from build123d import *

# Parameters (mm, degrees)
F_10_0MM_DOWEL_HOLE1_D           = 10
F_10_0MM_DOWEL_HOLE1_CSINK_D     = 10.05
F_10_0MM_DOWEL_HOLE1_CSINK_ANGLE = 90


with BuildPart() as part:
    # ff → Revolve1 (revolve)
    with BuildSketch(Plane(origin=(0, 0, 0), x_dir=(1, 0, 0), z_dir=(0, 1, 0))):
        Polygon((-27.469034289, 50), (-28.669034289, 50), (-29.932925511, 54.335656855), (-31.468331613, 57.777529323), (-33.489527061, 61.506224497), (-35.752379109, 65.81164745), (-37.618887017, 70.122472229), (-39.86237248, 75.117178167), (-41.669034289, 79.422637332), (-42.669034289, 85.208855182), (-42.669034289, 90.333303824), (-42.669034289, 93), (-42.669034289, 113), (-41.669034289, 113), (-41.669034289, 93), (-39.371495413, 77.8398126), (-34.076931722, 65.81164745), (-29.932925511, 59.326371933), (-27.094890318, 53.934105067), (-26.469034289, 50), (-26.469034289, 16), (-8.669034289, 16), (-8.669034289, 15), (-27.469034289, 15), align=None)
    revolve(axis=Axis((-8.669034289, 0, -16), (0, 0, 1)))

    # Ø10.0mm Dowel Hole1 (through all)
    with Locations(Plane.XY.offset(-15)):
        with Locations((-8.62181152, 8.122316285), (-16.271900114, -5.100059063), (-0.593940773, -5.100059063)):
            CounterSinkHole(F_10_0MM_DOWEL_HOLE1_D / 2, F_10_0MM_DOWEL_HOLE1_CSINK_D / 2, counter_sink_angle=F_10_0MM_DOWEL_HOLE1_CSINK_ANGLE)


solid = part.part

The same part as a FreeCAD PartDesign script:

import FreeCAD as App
import Part
import Sketcher
from FreeCAD import Vector


def add_polygon(sketch, points):
    """Adds a closed chain of lines whose ends are joined by coincident constraints."""
    first, n = sketch.GeometryCount, len(points)
    for a, b in zip(points, points[1:] + points[:1]):
        sketch.addGeometry(Part.LineSegment(App.Vector(*a, 0), App.Vector(*b, 0)), False)
    for i in range(n):
        sketch.addConstraint(Sketcher.Constraint("Coincident", first + i, 2, first + (i + 1) % n, 1))

doc = App.newDocument("Part")
body = doc.addObject("PartDesign::Body", "Body")

# Sketch on XZ plane
sketch1 = body.newObject("Sketcher::SketchObject", "Sketch")
sketch1.AttachmentSupport = (doc.getObject("XZ_Plane"), [""])
sketch1.MapMode = "FlatFace"
add_polygon(sketch1, [(-28.7, -50), (-27.5, -50), (-27.5, -15), (-8.7, -15), (-8.7, -16), (-26.5, -16), (-26.5, -50), (-27.1, -53.9), (-29.9, -59.3), (-34.1, -65.8), (-39.4, -77.8), (-41.7, -93), (-41.7, -113), (-42.7, -113), (-42.7, -85.2), (-41.7, -79.4), (-39.9, -75.1), (-37.6, -70.1), (-35.8, -65.8), (-33.5, -61.5), (-31.5, -57.8), (-29.9, -54.3)])  # lines 0-21
sketch1.addGeometry(Part.LineSegment(Vector(-8.7, -113, 0), Vector(-8.7, -15, 0)), True)  # axis
sketch1.addConstraint([
    Sketcher.Constraint("Horizontal", 0),
    Sketcher.Constraint("Vertical", 1),
    Sketcher.Constraint("Horizontal", 2),
    Sketcher.Constraint("Vertical", 3),
    Sketcher.Constraint("Horizontal", 4),
    Sketcher.Constraint("Vertical", 5),
    Sketcher.Constraint("Vertical", 11),
    Sketcher.Constraint("Horizontal", 12),
    Sketcher.Constraint("Vertical", 13),
    Sketcher.Constraint("Vertical", 22),
    Sketcher.Constraint("Coincident", 22, 2, 2, 2),
    Sketcher.Constraint("Horizontal", 0, 2, 5, 2),
    Sketcher.Constraint("Horizontal", 8, 2, 17, 2),
    Sketcher.Constraint("Horizontal", 12, 2, 22, 1),
    Sketcher.Constraint("Vertical", 11, 2, 14, 2),
    Sketcher.Constraint("Vertical", 7, 2, 20, 2),
    Sketcher.Constraint("Equal", 12, 3),
    Sketcher.Constraint("DistanceX", 12, 2, 12, 1, 1.0),
    Sketcher.Constraint("DistanceY", 1, 1, 1, 2, 35.0),
    Sketcher.Constraint("DistanceY", 11, 2, 11, 1, 20.0),
    Sketcher.Constraint("DistanceY", 22, 1, 22, 2, 98.0),
    Sketcher.Constraint("DistanceX", 0, 1, 0, 2, 1.2),
    Sketcher.Constraint("DistanceX", 2, 1, 2, 2, 18.8),
    Sketcher.Constraint("DistanceX", 4, 2, 4, 1, 17.8),
    Sketcher.Constraint("DistanceY", 0, 2, -1, 1, 50.0),
    Sketcher.Constraint("DistanceX", 11, 2, 22, 1, 33.0),
    Sketcher.Constraint("DistanceY", 16, 2, 7, 2, 10.7961),
    Sketcher.Constraint("DistanceX", 18, 2, 7, 2, 3.556602),
    Sketcher.Constraint("DistanceX", 8, 2, 19, 2, 2.6086),
    Sketcher.Constraint("Distance", 7, 6.09352),
    Sketcher.Constraint("Distance", 16, 5.475428),
    Sketcher.Constraint("Distance", 17, 4.697559),
    Sketcher.Constraint("Distance", 21, 4.51612),
    Sketcher.Constraint("DistanceY", 13, 1, 13, 2, 27.791145),
    Sketcher.Constraint("DistanceX", 6, 2, -1, 1, 27.09489),
    Sketcher.Constraint("DistanceY", 7, 2, -1, 1, 59.326372),
    Sketcher.Constraint("DistanceX", 8, 2, -1, 1, 34.076932),
    Sketcher.Constraint("DistanceY", 15, 2, -1, 1, 75.117178),
    Sketcher.Constraint("DistanceX", 17, 2, -1, 1, 35.752379),
    Sketcher.Constraint("DistanceY", 19, 2, -1, 1, 57.777529),
    Sketcher.Constraint("DistanceX", 7, 2, 0, 2, 2.463891),
    Sketcher.Constraint("DistanceX", 9, 2, 7, 2, 9.43857),
    Sketcher.Constraint("DistanceY", 9, 2, 7, 2, 18.513441),
    Sketcher.Constraint("DistanceY", 14, 2, 8, 2, 13.61099),
    Sketcher.Constraint("DistanceX", 14, 2, 15, 2, 1.806662),
    Sketcher.Constraint("DistanceY", 14, 2, 15, 2, 4.305459),
    Sketcher.Constraint("DistanceY", 18, 2, 6, 2, 7.572119),
])
revolution = body.newObject("PartDesign::Revolution", "Revolution")
revolution.Profile = sketch1
revolution.ReferenceAxis = (sketch1, ["Axis0"])
revolution.Angle = 360

# Sketch on XY plane
sketch2 = body.newObject("Sketcher::SketchObject", "Sketch001")
sketch2.AttachmentSupport = (doc.getObject("XY_Plane"), [""])
sketch2.MapMode = "FlatFace"
sketch2.AttachmentOffset = App.Placement(Vector(0, 0, -15), App.Rotation())
sketch2.addGeometry([
    Part.Circle(Vector(-9, 8, 0), Vector(0, 0, 1), 5),
    Part.Circle(Vector(-16, -5, 0), Vector(0, 0, 1), 5),
    Part.Circle(Vector(-1, -5, 0), Vector(0, 0, 1), 5),
], False)
sketch2.addConstraint([
    Sketcher.Constraint("Equal", 0, 1),
    Sketcher.Constraint("Equal", 1, 2),
    Sketcher.Constraint("Horizontal", 1, 3, 2, 3),
    Sketcher.Constraint("Diameter", 0, 10.0),
    Sketcher.Constraint("DistanceX", 1, 3, -1, 1, 16.2719),
    Sketcher.Constraint("DistanceX", 0, 3, -1, 1, 8.621812),
    Sketcher.Constraint("DistanceY", 1, 3, -1, 1, 5.100059),
    Sketcher.Constraint("DistanceX", 2, 3, -1, 1, 0.593941),
    Sketcher.Constraint("DistanceY", -1, 1, 0, 3, 8.122316),
])
doc.recompute()
hole = body.newObject("PartDesign::Hole", "Hole")
hole.Profile = sketch2
hole.ThreadType = "None"
hole.Diameter = 10
hole.DepthType = "ThroughAll"
hole.HoleCutType = "Countersink"
hole.HoleCutDiameter = 10.05
hole.HoleCutCountersinkAngle = 90

doc.recompute()
